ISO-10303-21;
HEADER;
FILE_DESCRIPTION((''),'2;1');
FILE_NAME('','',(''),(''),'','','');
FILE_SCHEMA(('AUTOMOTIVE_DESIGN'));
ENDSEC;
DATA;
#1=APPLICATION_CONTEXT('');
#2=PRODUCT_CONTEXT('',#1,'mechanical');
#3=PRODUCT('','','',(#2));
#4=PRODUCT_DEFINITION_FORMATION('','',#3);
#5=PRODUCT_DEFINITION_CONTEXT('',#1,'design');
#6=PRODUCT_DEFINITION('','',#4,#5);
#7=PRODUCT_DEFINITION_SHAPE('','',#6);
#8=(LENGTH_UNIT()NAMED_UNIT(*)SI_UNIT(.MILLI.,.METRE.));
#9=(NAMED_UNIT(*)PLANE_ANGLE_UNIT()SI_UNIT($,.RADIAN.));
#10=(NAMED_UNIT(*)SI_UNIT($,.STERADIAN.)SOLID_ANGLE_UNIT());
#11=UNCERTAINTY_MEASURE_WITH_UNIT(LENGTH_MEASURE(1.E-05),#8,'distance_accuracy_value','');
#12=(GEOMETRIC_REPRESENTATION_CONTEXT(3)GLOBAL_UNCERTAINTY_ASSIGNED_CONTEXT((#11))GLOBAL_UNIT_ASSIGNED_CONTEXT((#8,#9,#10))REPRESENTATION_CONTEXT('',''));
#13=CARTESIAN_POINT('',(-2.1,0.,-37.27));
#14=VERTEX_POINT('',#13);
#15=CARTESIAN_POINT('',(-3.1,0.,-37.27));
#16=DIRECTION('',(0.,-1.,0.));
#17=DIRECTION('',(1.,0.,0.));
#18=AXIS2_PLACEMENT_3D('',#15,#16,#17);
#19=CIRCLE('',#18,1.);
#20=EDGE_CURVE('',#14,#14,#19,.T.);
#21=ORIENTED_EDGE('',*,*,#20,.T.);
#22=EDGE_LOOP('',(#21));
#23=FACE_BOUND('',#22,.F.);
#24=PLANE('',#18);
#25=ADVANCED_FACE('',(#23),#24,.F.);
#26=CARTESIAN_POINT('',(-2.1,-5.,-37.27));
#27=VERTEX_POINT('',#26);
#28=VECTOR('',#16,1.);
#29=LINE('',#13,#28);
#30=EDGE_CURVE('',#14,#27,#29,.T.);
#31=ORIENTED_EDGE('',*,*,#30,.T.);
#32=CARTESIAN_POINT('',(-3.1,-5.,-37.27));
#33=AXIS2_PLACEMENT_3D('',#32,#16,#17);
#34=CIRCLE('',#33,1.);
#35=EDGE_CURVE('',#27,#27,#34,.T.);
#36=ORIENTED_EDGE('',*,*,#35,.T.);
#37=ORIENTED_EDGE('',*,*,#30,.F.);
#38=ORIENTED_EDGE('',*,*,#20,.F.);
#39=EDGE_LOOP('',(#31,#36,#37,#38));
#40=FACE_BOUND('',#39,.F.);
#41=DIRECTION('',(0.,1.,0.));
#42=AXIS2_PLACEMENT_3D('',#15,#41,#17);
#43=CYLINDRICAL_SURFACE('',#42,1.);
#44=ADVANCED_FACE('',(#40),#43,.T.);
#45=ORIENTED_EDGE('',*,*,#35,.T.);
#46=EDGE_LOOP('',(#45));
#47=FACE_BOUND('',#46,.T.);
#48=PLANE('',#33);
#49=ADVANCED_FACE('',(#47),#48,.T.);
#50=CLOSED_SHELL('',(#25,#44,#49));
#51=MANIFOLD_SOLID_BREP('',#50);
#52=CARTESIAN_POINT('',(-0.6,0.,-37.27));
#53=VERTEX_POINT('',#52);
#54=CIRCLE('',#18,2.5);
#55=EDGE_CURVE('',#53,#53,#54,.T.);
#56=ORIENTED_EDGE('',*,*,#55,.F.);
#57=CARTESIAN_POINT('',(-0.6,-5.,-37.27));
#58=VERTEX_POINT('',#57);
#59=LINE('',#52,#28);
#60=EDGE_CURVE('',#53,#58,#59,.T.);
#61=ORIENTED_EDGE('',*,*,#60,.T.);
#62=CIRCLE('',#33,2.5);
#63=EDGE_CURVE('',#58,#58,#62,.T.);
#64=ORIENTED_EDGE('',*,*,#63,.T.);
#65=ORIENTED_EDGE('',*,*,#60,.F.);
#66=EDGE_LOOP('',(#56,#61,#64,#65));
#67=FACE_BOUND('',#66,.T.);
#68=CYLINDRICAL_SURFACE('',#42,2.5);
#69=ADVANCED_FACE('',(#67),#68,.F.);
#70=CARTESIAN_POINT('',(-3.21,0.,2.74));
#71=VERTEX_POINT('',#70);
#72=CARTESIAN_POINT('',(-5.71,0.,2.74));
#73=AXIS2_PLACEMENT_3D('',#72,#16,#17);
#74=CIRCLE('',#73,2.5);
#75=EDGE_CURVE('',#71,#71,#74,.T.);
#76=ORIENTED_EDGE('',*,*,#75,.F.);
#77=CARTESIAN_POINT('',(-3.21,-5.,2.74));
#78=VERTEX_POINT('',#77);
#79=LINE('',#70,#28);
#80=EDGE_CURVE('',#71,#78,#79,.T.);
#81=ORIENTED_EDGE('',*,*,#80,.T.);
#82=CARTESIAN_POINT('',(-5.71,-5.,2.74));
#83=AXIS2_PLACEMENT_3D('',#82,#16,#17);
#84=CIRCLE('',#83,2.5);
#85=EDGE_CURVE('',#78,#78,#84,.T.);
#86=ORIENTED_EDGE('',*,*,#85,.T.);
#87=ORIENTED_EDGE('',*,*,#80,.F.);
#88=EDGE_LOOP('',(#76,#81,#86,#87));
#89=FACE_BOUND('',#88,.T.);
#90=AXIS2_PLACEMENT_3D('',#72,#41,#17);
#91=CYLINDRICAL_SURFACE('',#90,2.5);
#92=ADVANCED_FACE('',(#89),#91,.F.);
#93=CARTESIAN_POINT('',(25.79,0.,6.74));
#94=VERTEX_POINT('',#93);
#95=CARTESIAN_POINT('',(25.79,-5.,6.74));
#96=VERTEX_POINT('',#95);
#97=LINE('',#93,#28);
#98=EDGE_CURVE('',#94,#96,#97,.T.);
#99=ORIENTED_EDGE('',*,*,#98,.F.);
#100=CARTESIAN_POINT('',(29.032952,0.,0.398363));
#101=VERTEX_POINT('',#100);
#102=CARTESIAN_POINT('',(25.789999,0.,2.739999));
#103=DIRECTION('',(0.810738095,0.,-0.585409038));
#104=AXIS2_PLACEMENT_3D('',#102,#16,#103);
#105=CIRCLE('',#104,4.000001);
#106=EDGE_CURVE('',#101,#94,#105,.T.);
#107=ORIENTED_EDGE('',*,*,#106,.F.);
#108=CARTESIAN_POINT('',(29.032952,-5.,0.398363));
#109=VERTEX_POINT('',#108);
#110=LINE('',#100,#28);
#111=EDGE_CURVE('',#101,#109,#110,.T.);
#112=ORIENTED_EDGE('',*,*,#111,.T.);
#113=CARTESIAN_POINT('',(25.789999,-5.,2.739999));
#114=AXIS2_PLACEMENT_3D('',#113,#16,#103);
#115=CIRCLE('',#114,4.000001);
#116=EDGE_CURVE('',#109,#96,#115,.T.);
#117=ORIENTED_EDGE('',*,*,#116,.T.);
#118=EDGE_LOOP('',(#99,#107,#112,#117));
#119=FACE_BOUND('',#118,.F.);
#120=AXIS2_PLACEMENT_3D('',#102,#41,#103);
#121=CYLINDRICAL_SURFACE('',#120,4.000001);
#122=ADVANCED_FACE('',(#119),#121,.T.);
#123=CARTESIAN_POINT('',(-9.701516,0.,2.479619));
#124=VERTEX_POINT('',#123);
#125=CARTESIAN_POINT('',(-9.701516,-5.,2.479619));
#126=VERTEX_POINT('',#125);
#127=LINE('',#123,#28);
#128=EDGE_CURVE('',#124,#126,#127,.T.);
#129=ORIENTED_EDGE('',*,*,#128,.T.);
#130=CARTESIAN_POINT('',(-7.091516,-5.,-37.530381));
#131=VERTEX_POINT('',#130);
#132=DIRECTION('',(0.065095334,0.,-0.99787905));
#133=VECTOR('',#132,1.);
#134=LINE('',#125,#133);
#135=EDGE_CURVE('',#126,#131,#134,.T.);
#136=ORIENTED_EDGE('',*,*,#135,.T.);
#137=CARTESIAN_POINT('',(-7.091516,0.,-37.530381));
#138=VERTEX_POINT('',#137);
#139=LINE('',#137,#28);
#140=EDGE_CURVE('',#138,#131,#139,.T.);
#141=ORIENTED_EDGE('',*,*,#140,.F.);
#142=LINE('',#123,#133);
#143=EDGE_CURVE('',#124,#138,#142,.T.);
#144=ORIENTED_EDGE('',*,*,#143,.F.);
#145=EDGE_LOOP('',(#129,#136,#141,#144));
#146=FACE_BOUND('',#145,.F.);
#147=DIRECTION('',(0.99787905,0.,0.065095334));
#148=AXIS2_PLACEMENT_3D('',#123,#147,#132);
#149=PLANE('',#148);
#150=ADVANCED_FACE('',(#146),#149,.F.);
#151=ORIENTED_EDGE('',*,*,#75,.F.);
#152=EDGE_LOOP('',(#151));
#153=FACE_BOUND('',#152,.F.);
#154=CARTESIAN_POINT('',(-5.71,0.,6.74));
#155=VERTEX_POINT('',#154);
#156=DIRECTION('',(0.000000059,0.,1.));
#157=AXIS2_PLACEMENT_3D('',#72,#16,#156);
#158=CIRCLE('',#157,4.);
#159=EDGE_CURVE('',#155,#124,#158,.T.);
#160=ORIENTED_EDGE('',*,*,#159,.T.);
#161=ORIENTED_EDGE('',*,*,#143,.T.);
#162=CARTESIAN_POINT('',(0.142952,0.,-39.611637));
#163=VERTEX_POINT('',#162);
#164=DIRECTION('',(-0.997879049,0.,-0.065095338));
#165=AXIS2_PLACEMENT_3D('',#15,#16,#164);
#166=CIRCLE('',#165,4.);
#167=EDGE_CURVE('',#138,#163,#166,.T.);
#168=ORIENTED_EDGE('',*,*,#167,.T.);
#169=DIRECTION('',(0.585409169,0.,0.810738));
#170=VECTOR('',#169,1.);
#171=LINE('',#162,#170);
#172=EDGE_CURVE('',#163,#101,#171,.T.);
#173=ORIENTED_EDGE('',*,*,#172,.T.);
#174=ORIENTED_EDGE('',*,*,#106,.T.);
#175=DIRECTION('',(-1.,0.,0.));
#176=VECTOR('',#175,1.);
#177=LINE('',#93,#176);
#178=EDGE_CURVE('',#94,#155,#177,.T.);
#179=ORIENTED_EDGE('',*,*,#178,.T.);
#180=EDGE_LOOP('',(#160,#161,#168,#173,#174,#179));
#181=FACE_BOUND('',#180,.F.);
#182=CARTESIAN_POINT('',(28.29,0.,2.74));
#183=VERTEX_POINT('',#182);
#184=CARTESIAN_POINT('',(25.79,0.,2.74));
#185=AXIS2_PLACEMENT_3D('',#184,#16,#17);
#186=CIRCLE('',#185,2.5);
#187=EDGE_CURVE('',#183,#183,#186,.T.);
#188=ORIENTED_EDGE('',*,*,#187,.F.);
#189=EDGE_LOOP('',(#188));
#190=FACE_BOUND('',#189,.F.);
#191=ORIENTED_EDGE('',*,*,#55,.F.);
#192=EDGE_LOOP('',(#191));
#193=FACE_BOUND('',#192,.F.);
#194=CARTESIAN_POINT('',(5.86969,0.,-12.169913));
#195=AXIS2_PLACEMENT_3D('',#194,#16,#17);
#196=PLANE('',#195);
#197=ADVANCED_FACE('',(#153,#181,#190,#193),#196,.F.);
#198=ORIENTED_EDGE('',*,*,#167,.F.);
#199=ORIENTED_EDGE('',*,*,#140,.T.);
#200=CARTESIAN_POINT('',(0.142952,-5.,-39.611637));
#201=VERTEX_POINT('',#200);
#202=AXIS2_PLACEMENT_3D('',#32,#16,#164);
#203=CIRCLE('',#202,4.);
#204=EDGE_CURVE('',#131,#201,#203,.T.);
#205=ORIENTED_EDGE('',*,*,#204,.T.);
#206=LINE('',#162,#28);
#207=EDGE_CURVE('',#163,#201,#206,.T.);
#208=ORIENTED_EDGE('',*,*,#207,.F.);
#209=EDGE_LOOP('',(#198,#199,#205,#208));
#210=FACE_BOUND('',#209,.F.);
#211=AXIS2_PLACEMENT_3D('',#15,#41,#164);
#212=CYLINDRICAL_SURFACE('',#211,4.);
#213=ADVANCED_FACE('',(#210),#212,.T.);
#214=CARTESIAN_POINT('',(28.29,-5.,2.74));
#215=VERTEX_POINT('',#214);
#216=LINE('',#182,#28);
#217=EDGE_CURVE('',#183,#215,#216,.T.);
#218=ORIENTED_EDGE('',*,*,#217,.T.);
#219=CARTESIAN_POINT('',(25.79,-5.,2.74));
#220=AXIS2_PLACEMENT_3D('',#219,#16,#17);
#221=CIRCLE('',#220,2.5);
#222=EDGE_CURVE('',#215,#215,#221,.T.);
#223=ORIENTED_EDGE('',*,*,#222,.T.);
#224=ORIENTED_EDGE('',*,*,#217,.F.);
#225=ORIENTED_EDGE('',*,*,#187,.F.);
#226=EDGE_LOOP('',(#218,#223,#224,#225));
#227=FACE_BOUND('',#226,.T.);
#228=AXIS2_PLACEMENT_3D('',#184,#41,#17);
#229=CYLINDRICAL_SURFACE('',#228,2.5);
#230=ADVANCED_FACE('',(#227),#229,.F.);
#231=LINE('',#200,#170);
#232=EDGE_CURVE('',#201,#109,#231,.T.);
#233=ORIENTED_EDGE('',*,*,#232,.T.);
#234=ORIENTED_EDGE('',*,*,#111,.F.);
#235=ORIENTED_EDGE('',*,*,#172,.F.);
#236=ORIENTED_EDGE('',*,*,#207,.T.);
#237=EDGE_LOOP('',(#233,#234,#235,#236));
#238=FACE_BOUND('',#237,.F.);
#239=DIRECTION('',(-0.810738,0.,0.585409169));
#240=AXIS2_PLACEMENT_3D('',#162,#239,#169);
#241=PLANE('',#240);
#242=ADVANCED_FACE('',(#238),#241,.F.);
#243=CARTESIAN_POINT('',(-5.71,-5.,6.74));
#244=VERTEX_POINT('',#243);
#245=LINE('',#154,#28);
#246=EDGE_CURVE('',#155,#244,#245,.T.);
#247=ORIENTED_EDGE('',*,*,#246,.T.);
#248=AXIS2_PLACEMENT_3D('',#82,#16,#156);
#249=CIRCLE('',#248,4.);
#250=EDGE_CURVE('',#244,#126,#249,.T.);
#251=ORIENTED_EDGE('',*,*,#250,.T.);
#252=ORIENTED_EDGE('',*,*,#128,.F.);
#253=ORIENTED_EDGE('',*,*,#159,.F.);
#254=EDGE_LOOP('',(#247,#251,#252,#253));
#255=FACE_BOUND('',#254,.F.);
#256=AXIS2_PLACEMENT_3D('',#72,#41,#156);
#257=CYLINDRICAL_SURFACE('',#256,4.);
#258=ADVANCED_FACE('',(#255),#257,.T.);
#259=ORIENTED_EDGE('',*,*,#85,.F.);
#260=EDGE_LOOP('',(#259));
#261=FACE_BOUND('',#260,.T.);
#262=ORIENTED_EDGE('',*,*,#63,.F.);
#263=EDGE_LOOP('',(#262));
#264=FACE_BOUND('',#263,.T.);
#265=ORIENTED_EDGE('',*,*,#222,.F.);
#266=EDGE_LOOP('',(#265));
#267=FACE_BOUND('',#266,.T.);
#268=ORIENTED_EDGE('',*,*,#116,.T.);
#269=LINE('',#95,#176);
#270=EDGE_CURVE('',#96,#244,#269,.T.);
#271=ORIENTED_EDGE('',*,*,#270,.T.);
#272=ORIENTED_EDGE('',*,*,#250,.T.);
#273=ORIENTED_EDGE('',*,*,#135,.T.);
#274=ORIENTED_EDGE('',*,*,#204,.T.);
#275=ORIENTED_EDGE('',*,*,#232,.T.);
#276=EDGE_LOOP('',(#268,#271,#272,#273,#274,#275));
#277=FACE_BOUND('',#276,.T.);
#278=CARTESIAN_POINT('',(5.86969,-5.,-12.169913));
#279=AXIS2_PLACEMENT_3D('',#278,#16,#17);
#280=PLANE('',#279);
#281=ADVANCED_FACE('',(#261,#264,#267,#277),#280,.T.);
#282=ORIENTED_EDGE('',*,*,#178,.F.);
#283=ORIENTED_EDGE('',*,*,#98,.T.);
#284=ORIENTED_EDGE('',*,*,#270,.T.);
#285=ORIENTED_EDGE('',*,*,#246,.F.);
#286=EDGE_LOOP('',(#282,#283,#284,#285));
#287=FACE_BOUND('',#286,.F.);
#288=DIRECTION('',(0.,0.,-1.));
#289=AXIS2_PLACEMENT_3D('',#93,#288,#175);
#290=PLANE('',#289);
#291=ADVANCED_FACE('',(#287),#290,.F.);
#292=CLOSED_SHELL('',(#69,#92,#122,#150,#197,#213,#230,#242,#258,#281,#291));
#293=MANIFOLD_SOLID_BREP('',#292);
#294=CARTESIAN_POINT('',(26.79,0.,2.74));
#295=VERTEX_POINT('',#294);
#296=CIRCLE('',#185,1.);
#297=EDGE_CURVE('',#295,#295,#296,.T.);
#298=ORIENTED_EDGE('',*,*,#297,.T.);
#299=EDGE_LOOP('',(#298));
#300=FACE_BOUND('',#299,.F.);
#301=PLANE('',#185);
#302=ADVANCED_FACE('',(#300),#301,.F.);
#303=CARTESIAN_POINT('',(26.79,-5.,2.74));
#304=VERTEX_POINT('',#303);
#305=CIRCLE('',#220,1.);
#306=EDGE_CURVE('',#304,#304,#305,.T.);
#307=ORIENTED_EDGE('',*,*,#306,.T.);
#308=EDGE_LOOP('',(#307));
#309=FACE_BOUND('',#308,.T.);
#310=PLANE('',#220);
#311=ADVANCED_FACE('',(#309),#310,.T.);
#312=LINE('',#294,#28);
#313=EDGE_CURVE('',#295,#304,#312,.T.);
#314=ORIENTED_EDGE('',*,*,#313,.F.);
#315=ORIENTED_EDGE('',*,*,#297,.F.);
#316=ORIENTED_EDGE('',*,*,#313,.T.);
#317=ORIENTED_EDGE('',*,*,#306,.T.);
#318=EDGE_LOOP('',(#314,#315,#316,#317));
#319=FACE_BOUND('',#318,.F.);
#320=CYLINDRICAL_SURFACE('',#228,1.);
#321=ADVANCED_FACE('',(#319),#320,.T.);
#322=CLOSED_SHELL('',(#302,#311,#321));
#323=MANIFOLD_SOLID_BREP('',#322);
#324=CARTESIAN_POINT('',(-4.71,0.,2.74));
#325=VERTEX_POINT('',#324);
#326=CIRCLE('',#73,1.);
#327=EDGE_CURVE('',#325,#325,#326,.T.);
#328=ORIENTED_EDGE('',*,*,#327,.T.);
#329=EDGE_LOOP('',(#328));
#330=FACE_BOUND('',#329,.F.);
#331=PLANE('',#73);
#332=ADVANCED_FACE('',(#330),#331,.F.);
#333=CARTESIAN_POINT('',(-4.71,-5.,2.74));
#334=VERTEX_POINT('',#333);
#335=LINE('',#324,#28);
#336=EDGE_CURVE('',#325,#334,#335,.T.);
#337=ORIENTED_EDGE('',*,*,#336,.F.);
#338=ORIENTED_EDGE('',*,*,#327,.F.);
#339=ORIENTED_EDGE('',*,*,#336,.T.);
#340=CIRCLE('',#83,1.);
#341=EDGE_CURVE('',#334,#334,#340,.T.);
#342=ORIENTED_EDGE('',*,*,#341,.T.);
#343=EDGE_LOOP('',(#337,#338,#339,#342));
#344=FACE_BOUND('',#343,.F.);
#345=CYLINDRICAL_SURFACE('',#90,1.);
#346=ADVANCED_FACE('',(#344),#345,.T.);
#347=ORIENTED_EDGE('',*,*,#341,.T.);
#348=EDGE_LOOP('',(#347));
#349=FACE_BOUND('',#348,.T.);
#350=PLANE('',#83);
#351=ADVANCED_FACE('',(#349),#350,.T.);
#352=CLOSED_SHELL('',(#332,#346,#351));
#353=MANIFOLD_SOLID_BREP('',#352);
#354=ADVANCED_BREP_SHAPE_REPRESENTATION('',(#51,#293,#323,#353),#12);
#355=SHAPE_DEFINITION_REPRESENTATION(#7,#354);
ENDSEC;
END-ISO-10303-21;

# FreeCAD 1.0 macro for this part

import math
import FreeCAD as App
import Part
import Sketcher
from FreeCAD import Vector

doc = App.newDocument("Part")
body = doc.addObject("PartDesign::Body", "Body")
body.AllowCompound = True

# Sketch on XZ plane
sketch1 = body.newObject("Sketcher::SketchObject", "Sketch")
sketch1.AttachmentSupport = (doc.getObject("XZ_Plane"), [""])
sketch1.MapMode = "FlatFace"
sketch1.addGeometry(Part.LineSegment(Vector(25.8, 6.7, 0), Vector(-5.7, 6.7, 0)), False)
sketch1.addGeometry(Part.ArcOfCircle(Part.Circle(Vector(-5.7, 2.7, 0), Vector(0, 0, 1), 4), math.radians(90), math.radians(184)), False)
sketch1.addGeometry(Part.LineSegment(Vector(-9.7, 2.5, 0), Vector(-7.1, -37.5, 0)), False)
sketch1.addGeometry(Part.ArcOfCircle(Part.Circle(Vector(-3.1, -37.3, 0), Vector(0, 0, 1), 4), math.radians(-176), math.radians(-36)), False)
sketch1.addGeometry(Part.LineSegment(Vector(0.1, -39.6, 0), Vector(29, 0.4, 0)), False)
sketch1.addGeometry(Part.ArcOfCircle(Part.Circle(Vector(25.8, 2.7, 0), Vector(0, 0, 1), 4), math.radians(-36), math.radians(90)), False)
sketch1.addGeometry(Part.Circle(Vector(-3.1, -37.3, 0), Vector(0, 0, 1), 2.5), False)
sketch1.addGeometry(Part.Circle(Vector(-5.7, 2.7, 0), Vector(0, 0, 1), 2.5), False)
sketch1.addGeometry(Part.Circle(Vector(25.8, 2.7, 0), Vector(0, 0, 1), 2.5), False)
sketch1.addGeometry(Part.Circle(Vector(-5.7, 2.7, 0), Vector(0, 0, 1), 1), False)
sketch1.addGeometry(Part.Circle(Vector(25.8, 2.7, 0), Vector(0, 0, 1), 1), False)
sketch1.addGeometry(Part.Circle(Vector(-3.1, -37.3, 0), Vector(0, 0, 1), 1), False)
sketch1.addConstraint(Sketcher.Constraint("Tangent", 0, 2, 1, 1))
sketch1.addConstraint(Sketcher.Constraint("Tangent", 1, 2, 2, 1))
sketch1.addConstraint(Sketcher.Constraint("Tangent", 2, 2, 3, 1))
sketch1.addConstraint(Sketcher.Constraint("Tangent", 3, 2, 4, 1))
sketch1.addConstraint(Sketcher.Constraint("Tangent", 4, 2, 5, 1))
sketch1.addConstraint(Sketcher.Constraint("Tangent", 5, 2, 0, 1))
sketch1.addConstraint(Sketcher.Constraint("Horizontal", 0))
sketch1.addConstraint(Sketcher.Constraint("Coincident", 6, 3, 3, 3))
sketch1.addConstraint(Sketcher.Constraint("Coincident", 7, 3, 1, 3))
sketch1.addConstraint(Sketcher.Constraint("Coincident", 8, 3, 5, 3))
sketch1.addConstraint(Sketcher.Constraint("Coincident", 9, 3, 1, 3))
sketch1.addConstraint(Sketcher.Constraint("Coincident", 10, 3, 5, 3))
sketch1.addConstraint(Sketcher.Constraint("Coincident", 11, 3, 3, 3))
sketch1.addConstraint(Sketcher.Constraint("Equal", 1, 3))
sketch1.addConstraint(Sketcher.Constraint("Equal", 3, 5))
sketch1.addConstraint(Sketcher.Constraint("Equal", 6, 7))
sketch1.addConstraint(Sketcher.Constraint("Equal", 7, 8))
sketch1.addConstraint(Sketcher.Constraint("Equal", 9, 10))
sketch1.addConstraint(Sketcher.Constraint("Equal", 10, 11))
sketch1.addConstraint(Sketcher.Constraint("Diameter", 6, 5.0))
sketch1.addConstraint(Sketcher.Constraint("Diameter", 9, 2.0))
sketch1.addConstraint(Sketcher.Constraint("Radius", 1, 4.0))
sketch1.addConstraint(Sketcher.Constraint("DistanceX", 0, 2, 0, 1, 31.5))
sketch1.addConstraint(Sketcher.Constraint("DistanceX", 3, 3, -1, 1, 3.1))
sketch1.addConstraint(Sketcher.Constraint("DistanceX", 1, 3, -1, 1, 5.71))
sketch1.addConstraint(Sketcher.Constraint("DistanceY", -1, 1, 1, 3, 2.74))
sketch1.addConstraint(Sketcher.Constraint("DistanceY", 3, 3, -1, 1, 37.27))
pad1 = body.newObject("PartDesign::Pad", "Pad")
pad1.Profile = sketch1
pad1.Length = 5

doc.recompute()
